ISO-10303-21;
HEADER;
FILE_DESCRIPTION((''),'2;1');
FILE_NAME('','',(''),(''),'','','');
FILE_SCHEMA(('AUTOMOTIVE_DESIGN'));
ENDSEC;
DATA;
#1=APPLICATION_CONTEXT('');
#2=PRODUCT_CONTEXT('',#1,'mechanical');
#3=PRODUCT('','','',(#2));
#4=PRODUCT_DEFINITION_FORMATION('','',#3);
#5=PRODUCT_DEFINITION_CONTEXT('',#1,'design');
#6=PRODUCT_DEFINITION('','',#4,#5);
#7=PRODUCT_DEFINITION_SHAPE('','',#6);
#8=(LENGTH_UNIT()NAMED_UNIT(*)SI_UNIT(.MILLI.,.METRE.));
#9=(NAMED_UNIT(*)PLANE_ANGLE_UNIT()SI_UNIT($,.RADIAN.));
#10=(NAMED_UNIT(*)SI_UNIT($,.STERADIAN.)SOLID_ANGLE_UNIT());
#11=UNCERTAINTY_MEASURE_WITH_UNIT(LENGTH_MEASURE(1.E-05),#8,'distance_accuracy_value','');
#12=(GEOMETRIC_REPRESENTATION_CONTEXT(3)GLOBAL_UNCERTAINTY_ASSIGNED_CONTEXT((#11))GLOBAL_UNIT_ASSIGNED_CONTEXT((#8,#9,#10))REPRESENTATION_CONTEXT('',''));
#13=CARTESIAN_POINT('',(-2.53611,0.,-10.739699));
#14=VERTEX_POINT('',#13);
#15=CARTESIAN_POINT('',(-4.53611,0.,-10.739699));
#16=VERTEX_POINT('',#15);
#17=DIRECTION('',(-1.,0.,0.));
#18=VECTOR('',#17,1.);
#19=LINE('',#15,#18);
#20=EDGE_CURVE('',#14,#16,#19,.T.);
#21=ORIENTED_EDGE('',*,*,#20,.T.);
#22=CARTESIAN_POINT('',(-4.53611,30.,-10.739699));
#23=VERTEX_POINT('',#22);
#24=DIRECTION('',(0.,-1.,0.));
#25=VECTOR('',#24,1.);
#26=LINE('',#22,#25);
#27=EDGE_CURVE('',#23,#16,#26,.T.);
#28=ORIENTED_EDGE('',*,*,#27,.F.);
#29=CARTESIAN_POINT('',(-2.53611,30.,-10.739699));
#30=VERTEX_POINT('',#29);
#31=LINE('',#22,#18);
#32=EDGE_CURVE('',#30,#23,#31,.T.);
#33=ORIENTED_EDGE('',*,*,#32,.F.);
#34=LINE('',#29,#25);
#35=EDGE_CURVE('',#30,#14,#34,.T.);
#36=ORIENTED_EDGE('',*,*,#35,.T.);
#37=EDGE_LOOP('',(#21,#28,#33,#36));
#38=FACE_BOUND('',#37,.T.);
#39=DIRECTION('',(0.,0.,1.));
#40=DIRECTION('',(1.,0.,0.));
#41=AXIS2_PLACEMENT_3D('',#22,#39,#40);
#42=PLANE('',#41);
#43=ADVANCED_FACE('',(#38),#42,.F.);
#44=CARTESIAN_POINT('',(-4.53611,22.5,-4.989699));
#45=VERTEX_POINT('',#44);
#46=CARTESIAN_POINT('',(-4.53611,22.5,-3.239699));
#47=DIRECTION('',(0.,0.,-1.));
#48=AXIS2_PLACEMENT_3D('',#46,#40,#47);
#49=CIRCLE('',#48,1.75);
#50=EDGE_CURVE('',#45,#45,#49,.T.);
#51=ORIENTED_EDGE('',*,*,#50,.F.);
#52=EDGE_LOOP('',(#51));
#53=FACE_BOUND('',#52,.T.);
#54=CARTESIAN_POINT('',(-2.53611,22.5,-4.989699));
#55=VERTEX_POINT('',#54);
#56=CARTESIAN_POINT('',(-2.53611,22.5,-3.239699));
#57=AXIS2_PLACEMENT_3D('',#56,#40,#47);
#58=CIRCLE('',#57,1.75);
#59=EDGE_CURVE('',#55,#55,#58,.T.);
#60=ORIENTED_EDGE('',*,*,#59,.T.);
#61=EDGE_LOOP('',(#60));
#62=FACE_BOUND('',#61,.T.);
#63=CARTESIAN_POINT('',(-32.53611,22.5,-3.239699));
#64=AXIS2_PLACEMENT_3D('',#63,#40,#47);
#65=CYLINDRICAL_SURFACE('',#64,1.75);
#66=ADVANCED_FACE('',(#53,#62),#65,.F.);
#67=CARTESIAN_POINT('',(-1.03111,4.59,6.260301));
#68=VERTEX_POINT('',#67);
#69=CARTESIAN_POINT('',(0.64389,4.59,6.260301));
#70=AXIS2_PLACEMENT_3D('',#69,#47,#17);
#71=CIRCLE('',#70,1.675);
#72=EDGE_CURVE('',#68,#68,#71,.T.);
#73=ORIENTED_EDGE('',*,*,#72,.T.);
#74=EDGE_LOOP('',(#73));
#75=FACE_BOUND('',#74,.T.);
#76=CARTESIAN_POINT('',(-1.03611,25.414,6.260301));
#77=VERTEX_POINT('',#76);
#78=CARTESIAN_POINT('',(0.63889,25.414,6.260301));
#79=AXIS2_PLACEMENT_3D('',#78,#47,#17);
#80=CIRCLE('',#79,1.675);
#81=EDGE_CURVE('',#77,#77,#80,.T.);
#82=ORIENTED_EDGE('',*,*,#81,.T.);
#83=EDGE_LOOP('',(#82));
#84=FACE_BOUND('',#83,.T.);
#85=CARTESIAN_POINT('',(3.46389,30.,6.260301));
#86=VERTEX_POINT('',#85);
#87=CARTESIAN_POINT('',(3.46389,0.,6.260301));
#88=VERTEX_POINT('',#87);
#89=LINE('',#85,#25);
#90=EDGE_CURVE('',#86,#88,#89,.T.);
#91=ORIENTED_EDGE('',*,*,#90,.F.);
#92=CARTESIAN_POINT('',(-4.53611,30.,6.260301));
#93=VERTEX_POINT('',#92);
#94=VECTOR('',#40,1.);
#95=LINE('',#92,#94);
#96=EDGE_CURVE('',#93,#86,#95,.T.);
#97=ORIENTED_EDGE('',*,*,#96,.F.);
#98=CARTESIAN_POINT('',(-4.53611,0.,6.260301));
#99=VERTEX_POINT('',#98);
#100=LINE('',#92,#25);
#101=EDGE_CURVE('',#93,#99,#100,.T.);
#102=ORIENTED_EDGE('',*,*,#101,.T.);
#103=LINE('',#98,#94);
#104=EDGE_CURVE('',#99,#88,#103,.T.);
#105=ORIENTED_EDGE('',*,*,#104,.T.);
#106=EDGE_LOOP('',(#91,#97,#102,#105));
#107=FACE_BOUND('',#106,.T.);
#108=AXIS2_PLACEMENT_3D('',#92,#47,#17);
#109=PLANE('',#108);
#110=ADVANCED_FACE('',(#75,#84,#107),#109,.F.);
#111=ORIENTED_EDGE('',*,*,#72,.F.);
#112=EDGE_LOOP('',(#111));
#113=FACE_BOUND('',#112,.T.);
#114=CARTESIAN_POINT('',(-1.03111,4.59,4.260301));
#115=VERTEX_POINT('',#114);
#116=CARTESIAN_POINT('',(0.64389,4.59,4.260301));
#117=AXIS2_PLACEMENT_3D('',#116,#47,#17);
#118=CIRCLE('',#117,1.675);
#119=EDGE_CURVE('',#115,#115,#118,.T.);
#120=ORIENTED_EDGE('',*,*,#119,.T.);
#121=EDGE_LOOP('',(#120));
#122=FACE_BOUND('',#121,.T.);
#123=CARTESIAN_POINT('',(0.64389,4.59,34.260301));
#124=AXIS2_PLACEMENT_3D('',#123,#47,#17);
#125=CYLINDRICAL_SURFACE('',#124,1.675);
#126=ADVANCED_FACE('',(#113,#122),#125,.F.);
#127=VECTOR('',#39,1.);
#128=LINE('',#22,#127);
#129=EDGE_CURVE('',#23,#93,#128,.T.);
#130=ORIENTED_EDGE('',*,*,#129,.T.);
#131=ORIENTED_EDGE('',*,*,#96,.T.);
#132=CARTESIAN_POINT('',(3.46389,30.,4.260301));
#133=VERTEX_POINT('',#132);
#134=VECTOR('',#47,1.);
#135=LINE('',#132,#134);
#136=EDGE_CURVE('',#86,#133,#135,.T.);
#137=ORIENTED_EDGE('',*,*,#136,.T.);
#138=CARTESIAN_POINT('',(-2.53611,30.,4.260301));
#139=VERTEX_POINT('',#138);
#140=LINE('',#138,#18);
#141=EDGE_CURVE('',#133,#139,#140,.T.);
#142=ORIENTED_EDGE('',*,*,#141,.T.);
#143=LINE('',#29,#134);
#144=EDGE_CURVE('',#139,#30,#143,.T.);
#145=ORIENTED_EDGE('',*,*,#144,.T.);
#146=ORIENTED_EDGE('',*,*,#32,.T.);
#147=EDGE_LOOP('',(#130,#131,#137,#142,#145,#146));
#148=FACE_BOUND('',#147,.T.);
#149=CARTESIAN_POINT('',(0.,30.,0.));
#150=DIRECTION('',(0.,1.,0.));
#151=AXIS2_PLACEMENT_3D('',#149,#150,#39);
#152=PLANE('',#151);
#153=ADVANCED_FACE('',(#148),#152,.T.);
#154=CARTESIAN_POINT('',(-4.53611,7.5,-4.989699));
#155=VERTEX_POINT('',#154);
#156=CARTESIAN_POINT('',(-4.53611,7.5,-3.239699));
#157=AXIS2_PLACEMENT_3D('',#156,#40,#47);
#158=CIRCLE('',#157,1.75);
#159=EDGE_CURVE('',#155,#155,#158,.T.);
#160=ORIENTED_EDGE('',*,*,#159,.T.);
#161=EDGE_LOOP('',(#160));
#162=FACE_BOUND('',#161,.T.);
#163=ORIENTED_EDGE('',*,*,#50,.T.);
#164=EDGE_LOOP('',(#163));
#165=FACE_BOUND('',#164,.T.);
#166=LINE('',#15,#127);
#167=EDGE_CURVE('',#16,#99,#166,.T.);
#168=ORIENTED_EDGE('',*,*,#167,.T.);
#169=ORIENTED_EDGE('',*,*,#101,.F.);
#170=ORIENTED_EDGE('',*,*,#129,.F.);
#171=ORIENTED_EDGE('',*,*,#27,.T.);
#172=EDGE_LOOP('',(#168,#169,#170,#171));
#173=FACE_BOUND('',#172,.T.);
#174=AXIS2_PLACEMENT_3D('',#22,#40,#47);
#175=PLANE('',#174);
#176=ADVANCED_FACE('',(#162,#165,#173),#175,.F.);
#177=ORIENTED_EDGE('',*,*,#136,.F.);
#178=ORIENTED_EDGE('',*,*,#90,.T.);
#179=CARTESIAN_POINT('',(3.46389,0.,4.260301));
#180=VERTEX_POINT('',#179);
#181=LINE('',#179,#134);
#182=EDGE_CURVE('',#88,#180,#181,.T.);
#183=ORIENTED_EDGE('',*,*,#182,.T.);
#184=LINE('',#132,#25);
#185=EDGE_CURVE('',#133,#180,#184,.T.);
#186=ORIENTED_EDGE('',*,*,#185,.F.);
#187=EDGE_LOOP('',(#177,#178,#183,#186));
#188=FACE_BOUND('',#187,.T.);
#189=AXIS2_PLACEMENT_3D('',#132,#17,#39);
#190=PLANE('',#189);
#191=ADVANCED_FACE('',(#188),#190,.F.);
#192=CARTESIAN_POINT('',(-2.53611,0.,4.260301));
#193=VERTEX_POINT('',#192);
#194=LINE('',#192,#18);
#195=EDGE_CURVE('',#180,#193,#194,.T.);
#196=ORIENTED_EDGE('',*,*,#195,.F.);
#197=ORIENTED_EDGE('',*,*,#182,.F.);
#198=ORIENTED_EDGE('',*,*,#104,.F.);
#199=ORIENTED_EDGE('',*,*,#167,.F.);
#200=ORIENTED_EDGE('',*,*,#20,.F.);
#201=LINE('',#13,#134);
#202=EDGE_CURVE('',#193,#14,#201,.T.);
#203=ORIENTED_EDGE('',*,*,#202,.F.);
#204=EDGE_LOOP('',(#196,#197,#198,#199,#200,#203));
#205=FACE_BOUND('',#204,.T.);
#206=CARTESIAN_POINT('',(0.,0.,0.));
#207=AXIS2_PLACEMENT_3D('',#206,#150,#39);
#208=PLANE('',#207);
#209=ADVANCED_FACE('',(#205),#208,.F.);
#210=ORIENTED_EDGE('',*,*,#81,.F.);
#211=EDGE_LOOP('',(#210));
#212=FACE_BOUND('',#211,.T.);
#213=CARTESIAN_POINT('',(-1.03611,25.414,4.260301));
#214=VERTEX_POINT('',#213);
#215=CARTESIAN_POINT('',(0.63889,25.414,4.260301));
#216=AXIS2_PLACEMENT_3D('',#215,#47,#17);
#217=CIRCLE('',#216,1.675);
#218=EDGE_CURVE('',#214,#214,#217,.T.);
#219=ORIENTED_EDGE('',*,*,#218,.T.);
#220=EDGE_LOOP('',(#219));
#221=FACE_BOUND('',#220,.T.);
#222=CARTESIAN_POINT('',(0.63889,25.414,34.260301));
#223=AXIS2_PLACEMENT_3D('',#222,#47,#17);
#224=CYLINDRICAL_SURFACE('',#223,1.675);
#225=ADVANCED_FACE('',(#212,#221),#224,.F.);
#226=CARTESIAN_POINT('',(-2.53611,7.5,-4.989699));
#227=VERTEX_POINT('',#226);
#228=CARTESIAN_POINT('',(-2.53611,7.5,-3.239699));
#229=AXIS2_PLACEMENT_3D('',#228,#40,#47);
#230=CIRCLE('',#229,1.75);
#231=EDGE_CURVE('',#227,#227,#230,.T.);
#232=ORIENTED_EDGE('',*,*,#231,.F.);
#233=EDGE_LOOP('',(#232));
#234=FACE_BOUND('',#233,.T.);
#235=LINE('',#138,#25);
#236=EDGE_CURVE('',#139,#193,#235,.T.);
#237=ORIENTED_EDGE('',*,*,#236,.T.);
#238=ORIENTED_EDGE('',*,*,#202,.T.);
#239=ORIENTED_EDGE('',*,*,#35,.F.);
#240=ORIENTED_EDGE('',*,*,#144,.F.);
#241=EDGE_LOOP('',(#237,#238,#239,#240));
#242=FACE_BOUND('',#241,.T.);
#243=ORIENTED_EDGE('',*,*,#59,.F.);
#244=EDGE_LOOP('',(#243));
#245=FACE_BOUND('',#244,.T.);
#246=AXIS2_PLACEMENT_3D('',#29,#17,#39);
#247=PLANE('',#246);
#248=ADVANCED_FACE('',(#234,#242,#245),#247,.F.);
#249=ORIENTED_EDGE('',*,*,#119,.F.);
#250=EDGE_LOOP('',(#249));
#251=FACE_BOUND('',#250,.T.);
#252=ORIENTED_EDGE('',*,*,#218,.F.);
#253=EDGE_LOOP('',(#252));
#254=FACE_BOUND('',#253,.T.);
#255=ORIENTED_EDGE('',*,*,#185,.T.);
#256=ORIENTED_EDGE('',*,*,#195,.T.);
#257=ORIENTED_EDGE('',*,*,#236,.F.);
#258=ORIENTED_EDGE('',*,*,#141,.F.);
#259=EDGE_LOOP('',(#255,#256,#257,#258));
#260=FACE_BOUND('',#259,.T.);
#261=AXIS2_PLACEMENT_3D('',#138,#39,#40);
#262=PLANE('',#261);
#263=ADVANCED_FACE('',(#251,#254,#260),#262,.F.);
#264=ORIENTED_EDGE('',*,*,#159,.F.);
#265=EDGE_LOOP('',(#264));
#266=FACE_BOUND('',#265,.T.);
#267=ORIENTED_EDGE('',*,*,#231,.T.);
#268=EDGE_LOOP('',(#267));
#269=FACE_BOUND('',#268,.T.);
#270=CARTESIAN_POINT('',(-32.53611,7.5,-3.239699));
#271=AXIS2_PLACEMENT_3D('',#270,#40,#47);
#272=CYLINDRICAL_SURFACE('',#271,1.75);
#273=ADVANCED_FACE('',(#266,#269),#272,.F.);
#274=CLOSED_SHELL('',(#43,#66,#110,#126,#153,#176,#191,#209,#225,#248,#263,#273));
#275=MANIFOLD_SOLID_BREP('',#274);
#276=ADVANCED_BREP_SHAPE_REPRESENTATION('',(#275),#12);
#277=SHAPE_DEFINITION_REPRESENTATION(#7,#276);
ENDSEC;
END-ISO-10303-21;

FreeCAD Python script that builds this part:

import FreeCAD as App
import Part
import Sketcher
Q = App.Units.Quantity

doc = App.newDocument("Part")
body = doc.addObject("PartDesign::Body", "Body")

# Sketch on XZ plane
sketch1 = body.newObject("Sketcher::SketchObject", "Sketch")
sketch1.AttachmentSupport = (doc.getObject("XZ_Plane"), [""])
sketch1.MapMode = "FlatFace"
sketch1.addGeometry(Part.LineSegment(App.Vector(-2.5, 4.3, 0), App.Vector(-2.5, -10.7, 0)), False)
sketch1.addGeometry(Part.LineSegment(App.Vector(-2.5, -10.7, 0), App.Vector(-4.5, -10.7, 0)), False)
sketch1.addGeometry(Part.LineSegment(App.Vector(-4.5, -10.7, 0), App.Vector(-4.5, 6.3, 0)), False)
sketch1.addGeometry(Part.LineSegment(App.Vector(-4.5, 6.3, 0), App.Vector(3.5, 6.3, 0)), False)
sketch1.addGeometry(Part.LineSegment(App.Vector(3.5, 6.3, 0), App.Vector(3.5, 4.3, 0)), False)
sketch1.addGeometry(Part.LineSegment(App.Vector(3.5, 4.3, 0), App.Vector(-2.5, 4.3, 0)), False)
sketch1.addConstraint(Sketcher.Constraint("Coincident", 0, 2, 1, 1))
sketch1.addConstraint(Sketcher.Constraint("Coincident", 1, 2, 2, 1))
sketch1.addConstraint(Sketcher.Constraint("Coincident", 2, 2, 3, 1))
sketch1.addConstraint(Sketcher.Constraint("Coincident", 3, 2, 4, 1))
sketch1.addConstraint(Sketcher.Constraint("Coincident", 4, 2, 5, 1))
sketch1.addConstraint(Sketcher.Constraint("Coincident", 5, 2, 0, 1))
sketch1.addConstraint(Sketcher.Constraint("Vertical", 0))
sketch1.addConstraint(Sketcher.Constraint("Horizontal", 1))
sketch1.addConstraint(Sketcher.Constraint("Vertical", 2))
sketch1.addConstraint(Sketcher.Constraint("Horizontal", 3))
sketch1.addConstraint(Sketcher.Constraint("Vertical", 4))
sketch1.addConstraint(Sketcher.Constraint("Horizontal", 5))
sketch1.addConstraint(Sketcher.Constraint("Equal", 1, 4))
sketch1.addConstraint(Sketcher.Constraint("DistanceX", 1, 2, 1, 1, Q("2 mm")))
sketch1.addConstraint(Sketcher.Constraint("DistanceX", 3, 1, 3, 2, Q("8 mm")))
sketch1.addConstraint(Sketcher.Constraint("DistanceY", 0, 2, 0, 1, Q("15 mm")))
sketch1.addConstraint(Sketcher.Constraint("DistanceY", 0, 2, -1, 1, Q("10.739699 mm")))
sketch1.addConstraint(Sketcher.Constraint("DistanceX", 0, 2, -1, 1, Q("2.53611 mm")))
pad1 = body.newObject("PartDesign::Pad", "Pad")
pad1.Profile = sketch1
pad1.Length = 30
pad1.Reversed = True

# Sketch on XY plane
sketch2 = body.newObject("Sketcher::SketchObject", "Sketch001")
sketch2.AttachmentSupport = (doc.getObject("XY_Plane"), [""])
sketch2.MapMode = "FlatFace"
sketch2.AttachmentOffset = App.Placement(App.Vector(0, 0, 4.260301), App.Rotation())
sketch2.addGeometry(Part.Circle(App.Vector(0.6, 25.4, 0), App.Vector(0, 0, 1), 1.7), False)
sketch2.addGeometry(Part.Circle(App.Vector(0.6, 4.6, 0), App.Vector(0, 0, 1), 1.7), False)
sketch2.addConstraint(Sketcher.Constraint("Equal", 0, 1))
sketch2.addConstraint(Sketcher.Constraint("Diameter", 0, Q("3.35 mm")))
sketch2.addConstraint(Sketcher.Constraint("DistanceY", -1, 1, 1, 3, Q("4.59 mm")))
sketch2.addConstraint(Sketcher.Constraint("DistanceY", -1, 1, 0, 3, Q("25.414 mm")))
sketch2.addConstraint(Sketcher.Constraint("DistanceX", 0, 3, 1, 3, Q("0.005 mm")))
sketch2.addConstraint(Sketcher.Constraint("DistanceX", -1, 1, 0, 3, Q("0.63889 mm")))
pocket1 = body.newObject("PartDesign::Pocket", "Pocket")
pocket1.Profile = sketch2
pocket1.Length = 30
pocket1.Reversed = True

# Sketch on YZ plane
sketch3 = body.newObject("Sketcher::SketchObject", "Sketch002")
sketch3.AttachmentSupport = (doc.getObject("YZ_Plane"), [""])
sketch3.MapMode = "FlatFace"
sketch3.AttachmentOffset = App.Placement(App.Vector(0, 0, -2.53611), App.Rotation())
sketch3.addGeometry(Part.Circle(App.Vector(22.5, -3.2, 0), App.Vector(0, 0, 1), 1.8), False)
sketch3.addGeometry(Part.Circle(App.Vector(7.5, -3.2, 0), App.Vector(0, 0, 1), 1.8), False)
sketch3.addConstraint(Sketcher.Constraint("Equal", 0, 1))
sketch3.addConstraint(Sketcher.Constraint("Horizontal", 0, 3, 1, 3))
sketch3.addConstraint(Sketcher.Constraint("Diameter", 0, Q("3.5 mm")))
sketch3.addConstraint(Sketcher.Constraint("DistanceX", 1, 3, 0, 3, Q("15 mm")))
sketch3.addConstraint(Sketcher.Constraint("DistanceX", -1, 1, 0, 3, Q("22.5 mm")))
sketch3.addConstraint(Sketcher.Constraint("DistanceY", 0, 3, -1, 1, Q("3.239699 mm")))
pocket2 = body.newObject("PartDesign::Pocket", "Pocket001")
pocket2.Profile = sketch3
pocket2.Length = 30

doc.recompute()
